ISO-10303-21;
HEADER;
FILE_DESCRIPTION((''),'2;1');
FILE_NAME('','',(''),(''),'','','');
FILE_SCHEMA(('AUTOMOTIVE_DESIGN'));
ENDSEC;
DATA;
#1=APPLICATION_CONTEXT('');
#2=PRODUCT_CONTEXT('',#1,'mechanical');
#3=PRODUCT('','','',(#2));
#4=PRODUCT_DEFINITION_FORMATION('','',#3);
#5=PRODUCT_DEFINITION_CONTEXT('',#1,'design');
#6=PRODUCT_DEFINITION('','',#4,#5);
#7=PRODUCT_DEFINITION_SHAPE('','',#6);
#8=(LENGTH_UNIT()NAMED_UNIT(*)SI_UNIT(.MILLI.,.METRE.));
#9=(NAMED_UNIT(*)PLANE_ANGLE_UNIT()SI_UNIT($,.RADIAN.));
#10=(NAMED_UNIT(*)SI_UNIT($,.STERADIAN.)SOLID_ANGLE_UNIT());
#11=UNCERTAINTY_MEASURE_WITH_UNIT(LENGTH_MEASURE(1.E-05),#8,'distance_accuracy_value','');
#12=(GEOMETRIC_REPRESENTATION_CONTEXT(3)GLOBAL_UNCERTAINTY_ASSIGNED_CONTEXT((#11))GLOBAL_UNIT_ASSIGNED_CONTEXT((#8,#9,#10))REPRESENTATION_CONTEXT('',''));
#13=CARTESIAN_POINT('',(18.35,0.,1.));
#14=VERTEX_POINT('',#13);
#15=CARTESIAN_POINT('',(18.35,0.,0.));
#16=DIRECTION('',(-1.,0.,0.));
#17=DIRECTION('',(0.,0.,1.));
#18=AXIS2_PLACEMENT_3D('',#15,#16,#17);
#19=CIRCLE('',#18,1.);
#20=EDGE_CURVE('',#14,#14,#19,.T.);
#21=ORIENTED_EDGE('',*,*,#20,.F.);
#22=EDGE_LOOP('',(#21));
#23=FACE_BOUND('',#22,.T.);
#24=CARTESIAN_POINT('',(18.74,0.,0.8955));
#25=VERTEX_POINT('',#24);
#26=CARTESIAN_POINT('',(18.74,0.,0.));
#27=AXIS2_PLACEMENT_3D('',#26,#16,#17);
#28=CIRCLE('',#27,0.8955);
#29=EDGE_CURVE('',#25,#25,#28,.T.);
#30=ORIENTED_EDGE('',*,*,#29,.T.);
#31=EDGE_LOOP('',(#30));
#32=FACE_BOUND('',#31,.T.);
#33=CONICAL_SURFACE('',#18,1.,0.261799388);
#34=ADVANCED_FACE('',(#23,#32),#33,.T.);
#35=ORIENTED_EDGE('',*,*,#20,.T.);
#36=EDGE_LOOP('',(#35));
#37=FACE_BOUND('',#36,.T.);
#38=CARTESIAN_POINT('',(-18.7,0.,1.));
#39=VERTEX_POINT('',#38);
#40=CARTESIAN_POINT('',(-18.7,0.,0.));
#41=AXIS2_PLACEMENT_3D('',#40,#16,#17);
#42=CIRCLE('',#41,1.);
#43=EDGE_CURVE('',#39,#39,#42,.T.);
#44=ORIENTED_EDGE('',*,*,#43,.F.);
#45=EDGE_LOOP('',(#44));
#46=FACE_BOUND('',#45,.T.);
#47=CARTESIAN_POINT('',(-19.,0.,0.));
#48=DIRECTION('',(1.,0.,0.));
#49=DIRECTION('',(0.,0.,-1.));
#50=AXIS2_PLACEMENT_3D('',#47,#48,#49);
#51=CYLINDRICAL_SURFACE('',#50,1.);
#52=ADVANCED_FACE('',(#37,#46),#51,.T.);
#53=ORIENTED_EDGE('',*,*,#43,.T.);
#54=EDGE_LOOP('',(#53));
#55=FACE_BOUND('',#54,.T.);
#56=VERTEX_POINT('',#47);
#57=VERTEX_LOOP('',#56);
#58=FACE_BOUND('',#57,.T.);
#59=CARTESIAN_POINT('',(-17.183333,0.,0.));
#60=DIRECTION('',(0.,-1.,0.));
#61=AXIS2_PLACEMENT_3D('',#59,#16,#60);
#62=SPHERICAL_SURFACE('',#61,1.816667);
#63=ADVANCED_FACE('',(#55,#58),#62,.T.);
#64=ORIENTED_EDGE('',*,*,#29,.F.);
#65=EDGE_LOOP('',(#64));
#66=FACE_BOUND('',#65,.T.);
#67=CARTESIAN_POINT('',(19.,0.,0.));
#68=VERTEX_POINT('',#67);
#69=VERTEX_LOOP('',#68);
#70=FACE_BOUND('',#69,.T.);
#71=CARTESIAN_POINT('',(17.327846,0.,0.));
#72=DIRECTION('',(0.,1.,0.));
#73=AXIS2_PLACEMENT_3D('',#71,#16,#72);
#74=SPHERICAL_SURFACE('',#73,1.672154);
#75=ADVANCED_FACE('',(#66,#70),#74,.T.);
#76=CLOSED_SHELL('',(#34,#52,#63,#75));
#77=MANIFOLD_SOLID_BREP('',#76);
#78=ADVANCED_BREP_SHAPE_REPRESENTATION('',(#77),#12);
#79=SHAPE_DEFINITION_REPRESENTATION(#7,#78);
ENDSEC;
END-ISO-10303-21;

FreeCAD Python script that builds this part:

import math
import FreeCAD as App
import Part
import Sketcher
Q = App.Units.Quantity

doc = App.newDocument("Part")
body = doc.addObject("PartDesign::Body", "Body")

sketch1 = body.newObject("Sketcher::SketchObject", "Sketch")
sketch1.AttachmentSupport = (doc.getObject("YZ_Plane"), [""])
sketch1.MapMode = "FlatFace"
sketch1.addGeometry(Part.Circle(App.Vector(0, 0, 0), App.Vector(0, 0, 1), 1), False)
sketch1.addConstraint([
    Sketcher.Constraint("Coincident", 0, 3, -1, 1),
    Sketcher.Constraint("Diameter", 0, 2.0),
])
pad1 = body.newObject("PartDesign::Pad", "Pad")
pad1.Profile = sketch1
pad1.Type = "TwoLengths"
pad1.Length = 19
pad1.Length2 = 19

sketch2 = body.newObject("Sketcher::SketchObject", "Sketch001")
sketch2.AttachmentSupport = (doc.getObject("XY_Plane"), [""])
sketch2.MapMode = "FlatFace"
sketch2.addGeometry([
    Part.LineSegment(App.Vector(18.35, 1.5, 0), App.Vector(18.35, 1, 0)),
    Part.LineSegment(App.Vector(18.35, 1, 0), App.Vector(18.74, 0.9, 0)),
    Part.ArcOfCircle(Part.Circle(App.Vector(17.33, 0, 0), App.Vector(0, 0, 1), 1.67), math.radians(0), math.radians(32)),
    Part.LineSegment(App.Vector(19, 0, 0), App.Vector(19.5, 0, 0)),
    Part.LineSegment(App.Vector(19.5, 0, 0), App.Vector(19.5, 1.5, 0)),
    Part.LineSegment(App.Vector(19.5, 1.5, 0), App.Vector(18.35, 1.5, 0)),
    Part.LineSegment(App.Vector(-18.7, 1, 0), App.Vector(-18.7, 1.5, 0)),
    Part.LineSegment(App.Vector(-18.7, 1.5, 0), App.Vector(-19.5, 1.5, 0)),
    Part.LineSegment(App.Vector(-19.5, 1.5, 0), App.Vector(-19.5, 0, 0)),
    Part.LineSegment(App.Vector(-19.5, 0, 0), App.Vector(-19, 0, 0)),
    Part.ArcOfCircle(Part.Circle(App.Vector(-17.18, 0, 0), App.Vector(0, 0, 1), 1.82), math.radians(147), math.radians(180)),
], False)
sketch2.addConstraint([
    Sketcher.Constraint("Coincident", 0, 2, 1, 1),
    Sketcher.Constraint("Coincident", 1, 2, 2, 2),
    Sketcher.Constraint("Coincident", 2, 1, 3, 1),
    Sketcher.Constraint("Coincident", 3, 2, 4, 1),
    Sketcher.Constraint("Coincident", 4, 2, 5, 1),
    Sketcher.Constraint("Coincident", 5, 2, 0, 1),
    Sketcher.Constraint("Coincident", 6, 2, 7, 1),
    Sketcher.Constraint("Coincident", 7, 2, 8, 1),
    Sketcher.Constraint("Coincident", 8, 2, 9, 1),
    Sketcher.Constraint("Coincident", 9, 2, 10, 2),
    Sketcher.Constraint("Coincident", 10, 1, 6, 1),
    Sketcher.Constraint("Vertical", 0),
    Sketcher.Constraint("Horizontal", 3),
    Sketcher.Constraint("Vertical", 4),
    Sketcher.Constraint("Horizontal", 5),
    Sketcher.Constraint("Vertical", 6),
    Sketcher.Constraint("Horizontal", 7),
    Sketcher.Constraint("Vertical", 8),
    Sketcher.Constraint("Horizontal", 9),
    Sketcher.Constraint("Symmetric", 3, 2, 8, 2, -1, 1),
    Sketcher.Constraint("Symmetric", 2, 1, 9, 2, -2),
    Sketcher.Constraint("PointOnObject", 2, 3, -1),
    Sketcher.Constraint("PointOnObject", 10, 3, -1),
    Sketcher.Constraint("Horizontal", 5, 2, 6, 2),
    Sketcher.Constraint("Horizontal", 0, 2, 10, 1),
    Sketcher.Constraint("Equal", 9, 0),
    Sketcher.Constraint("Angle", 1, Q("-15 deg")),
    Sketcher.Constraint("DistanceX", 3, 1, 3, 2, 0.5),
    Sketcher.Constraint("DistanceX", 7, 2, 7, 1, 0.8),
    Sketcher.Constraint("DistanceY", 4, 1, 4, 2, 1.5),
    Sketcher.Constraint("DistanceX", -1, 1, 2, 1, 19.0),
    Sketcher.Constraint("DistanceX", 5, 2, 5, 1, 1.15),
    Sketcher.Constraint("DistanceX", -1, 1, 1, 2, 18.74),
])
groove = body.newObject("PartDesign::Groove", "Groove")
groove.Profile = sketch2
groove.ReferenceAxis = (sketch2, ["H_Axis"])
groove.Angle = 360

doc.recompute()
